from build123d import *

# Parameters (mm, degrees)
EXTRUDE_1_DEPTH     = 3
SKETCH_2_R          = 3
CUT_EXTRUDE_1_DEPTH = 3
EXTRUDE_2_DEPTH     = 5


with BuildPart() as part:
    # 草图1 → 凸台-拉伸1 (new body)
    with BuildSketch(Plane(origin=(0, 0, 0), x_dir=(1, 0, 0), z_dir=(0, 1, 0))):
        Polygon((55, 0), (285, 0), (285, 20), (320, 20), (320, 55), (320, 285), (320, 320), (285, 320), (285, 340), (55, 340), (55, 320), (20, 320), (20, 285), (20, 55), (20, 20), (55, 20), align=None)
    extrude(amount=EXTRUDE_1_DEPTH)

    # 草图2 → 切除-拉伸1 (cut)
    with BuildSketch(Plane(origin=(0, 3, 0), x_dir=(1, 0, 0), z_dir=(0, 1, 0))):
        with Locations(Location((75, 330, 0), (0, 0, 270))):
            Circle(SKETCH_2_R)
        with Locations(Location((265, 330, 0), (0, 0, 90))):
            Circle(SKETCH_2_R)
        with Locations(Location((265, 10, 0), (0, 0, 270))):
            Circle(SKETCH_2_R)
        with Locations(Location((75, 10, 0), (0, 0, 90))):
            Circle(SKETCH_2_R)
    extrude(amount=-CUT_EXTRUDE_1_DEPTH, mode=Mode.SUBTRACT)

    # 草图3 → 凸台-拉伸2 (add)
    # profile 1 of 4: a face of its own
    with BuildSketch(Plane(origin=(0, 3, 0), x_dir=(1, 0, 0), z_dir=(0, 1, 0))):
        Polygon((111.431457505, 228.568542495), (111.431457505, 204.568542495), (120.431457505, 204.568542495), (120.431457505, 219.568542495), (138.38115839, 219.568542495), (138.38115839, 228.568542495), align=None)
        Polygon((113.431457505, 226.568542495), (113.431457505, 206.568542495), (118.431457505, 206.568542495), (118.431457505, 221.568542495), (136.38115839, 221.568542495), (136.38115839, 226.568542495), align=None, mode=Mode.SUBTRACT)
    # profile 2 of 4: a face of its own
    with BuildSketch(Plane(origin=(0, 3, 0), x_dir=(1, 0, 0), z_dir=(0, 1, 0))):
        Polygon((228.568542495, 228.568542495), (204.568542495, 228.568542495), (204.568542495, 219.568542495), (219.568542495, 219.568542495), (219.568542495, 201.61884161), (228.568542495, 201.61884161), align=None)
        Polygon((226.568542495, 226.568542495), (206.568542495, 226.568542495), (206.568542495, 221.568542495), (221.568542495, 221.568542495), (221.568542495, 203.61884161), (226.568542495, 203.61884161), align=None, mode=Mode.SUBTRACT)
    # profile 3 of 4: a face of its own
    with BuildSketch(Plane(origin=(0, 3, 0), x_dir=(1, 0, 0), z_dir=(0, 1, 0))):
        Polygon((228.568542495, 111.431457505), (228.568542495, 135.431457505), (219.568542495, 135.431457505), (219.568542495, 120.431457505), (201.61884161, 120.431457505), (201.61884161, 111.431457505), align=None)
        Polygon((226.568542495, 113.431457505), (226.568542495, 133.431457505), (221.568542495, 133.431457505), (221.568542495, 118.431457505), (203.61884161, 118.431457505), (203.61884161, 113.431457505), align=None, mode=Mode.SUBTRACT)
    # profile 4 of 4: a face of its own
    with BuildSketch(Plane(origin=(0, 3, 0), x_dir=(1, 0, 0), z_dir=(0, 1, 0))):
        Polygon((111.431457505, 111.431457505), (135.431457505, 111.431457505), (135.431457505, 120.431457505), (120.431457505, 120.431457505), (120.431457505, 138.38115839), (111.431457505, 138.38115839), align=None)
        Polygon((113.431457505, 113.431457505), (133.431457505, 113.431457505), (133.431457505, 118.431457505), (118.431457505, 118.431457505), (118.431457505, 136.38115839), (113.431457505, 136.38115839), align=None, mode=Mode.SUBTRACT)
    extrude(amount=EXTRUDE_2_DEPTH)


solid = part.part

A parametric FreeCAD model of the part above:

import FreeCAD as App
import Part
import Sketcher
from FreeCAD import Vector
Q = App.Units.Quantity


def add_polygon(sketch, points):
    """Adds a closed chain of lines whose ends are joined by coincident constraints."""
    first, n = sketch.GeometryCount, len(points)
    for a, b in zip(points, points[1:] + points[:1]):
        sketch.addGeometry(Part.LineSegment(App.Vector(*a, 0), App.Vector(*b, 0)), False)
    for i in range(n):
        sketch.addConstraint(Sketcher.Constraint("Coincident", first + i, 2, first + (i + 1) % n, 1))

doc = App.newDocument("Part")
body = doc.addObject("PartDesign::Body", "Body")

# Sketch on XZ plane
sketch1 = body.newObject("Sketcher::SketchObject", "Sketch")
sketch1.AttachmentSupport = (doc.getObject("XZ_Plane"), [""])
sketch1.MapMode = "FlatFace"
add_polygon(sketch1, [(55, 0), (285, 0), (285, -20), (320, -20), (320, -320), (285, -320), (285, -340), (55, -340), (55, -320), (20, -320), (20, -20), (55, -20)])  # lines 0-11
sketch1.addConstraint(Sketcher.Constraint("Horizontal", 0))
sketch1.addConstraint(Sketcher.Constraint("Vertical", 1))
sketch1.addConstraint(Sketcher.Constraint("Horizontal", 2))
sketch1.addConstraint(Sketcher.Constraint("Vertical", 3))
sketch1.addConstraint(Sketcher.Constraint("Horizontal", 4))
sketch1.addConstraint(Sketcher.Constraint("Vertical", 5))
sketch1.addConstraint(Sketcher.Constraint("Horizontal", 6))
sketch1.addConstraint(Sketcher.Constraint("Vertical", 7))
sketch1.addConstraint(Sketcher.Constraint("Horizontal", 8))
sketch1.addConstraint(Sketcher.Constraint("Vertical", 9))
sketch1.addConstraint(Sketcher.Constraint("Horizontal", 10))
sketch1.addConstraint(Sketcher.Constraint("Vertical", 11))
sketch1.addConstraint(Sketcher.Constraint("PointOnObject", 0, 2, -1))
sketch1.addConstraint(Sketcher.Constraint("Horizontal", 4, 2, 7, 2))
sketch1.addConstraint(Sketcher.Constraint("Horizontal", 2, 2, 9, 2))
sketch1.addConstraint(Sketcher.Constraint("Vertical", 1, 2, 4, 2))
sketch1.addConstraint(Sketcher.Constraint("Vertical", 7, 2, 10, 2))
sketch1.addConstraint(Sketcher.Constraint("Equal", 4, 8))
sketch1.addConstraint(Sketcher.Constraint("Equal", 1, 5))
sketch1.addConstraint(Sketcher.Constraint("DistanceX", 0, 1, 0, 2, Q("230 mm")))
sketch1.addConstraint(Sketcher.Constraint("DistanceX", 2, 1, 2, 2, Q("35 mm")))
sketch1.addConstraint(Sketcher.Constraint("DistanceY", 1, 2, 1, 1, Q("20 mm")))
sketch1.addConstraint(Sketcher.Constraint("DistanceY", 3, 2, 3, 1, Q("300 mm")))
sketch1.addConstraint(Sketcher.Constraint("DistanceX", -1, 1, 0, 2, Q("285 mm")))
pad1 = body.newObject("PartDesign::Pad", "Pad")
pad1.Profile = sketch1
pad1.Length = 3
pad1.Reversed = True

# Sketch on XZ plane
sketch2 = body.newObject("Sketcher::SketchObject", "Sketch001")
sketch2.AttachmentSupport = (doc.getObject("XZ_Plane"), [""])
sketch2.MapMode = "FlatFace"
sketch2.AttachmentOffset = App.Placement(Vector(0, 0, -3), App.Rotation())
sketch2.addGeometry(Part.Circle(Vector(75, -330, 0), Vector(0, 0, 1), 3), False)
sketch2.addGeometry(Part.Circle(Vector(265, -330, 0), Vector(0, 0, 1), 3), False)
sketch2.addGeometry(Part.Circle(Vector(265, -10, 0), Vector(0, 0, 1), 3), False)
sketch2.addGeometry(Part.Circle(Vector(75, -10, 0), Vector(0, 0, 1), 3), False)
sketch2.addConstraint(Sketcher.Constraint("Equal", 0, 1))
sketch2.addConstraint(Sketcher.Constraint("Equal", 1, 2))
sketch2.addConstraint(Sketcher.Constraint("Equal", 2, 3))
sketch2.addConstraint(Sketcher.Constraint("Horizontal", 0, 3, 1, 3))
sketch2.addConstraint(Sketcher.Constraint("Horizontal", 2, 3, 3, 3))
sketch2.addConstraint(Sketcher.Constraint("Vertical", 1, 3, 2, 3))
sketch2.addConstraint(Sketcher.Constraint("Vertical", 0, 3, 3, 3))
sketch2.addConstraint(Sketcher.Constraint("Diameter", 0, Q("6 mm")))
sketch2.addConstraint(Sketcher.Constraint("DistanceX", -1, 1, 0, 3, Q("75 mm")))
sketch2.addConstraint(Sketcher.Constraint("DistanceY", 0, 3, -1, 1, Q("330 mm")))
sketch2.addConstraint(Sketcher.Constraint("DistanceX", -1, 1, 1, 3, Q("265 mm")))
sketch2.addConstraint(Sketcher.Constraint("DistanceY", 2, 3, -1, 1, Q("10 mm")))
pocket1 = body.newObject("PartDesign::Pocket", "Pocket")
pocket1.Profile = sketch2
pocket1.Length = 3
pocket1.Reversed = True

# Sketch on XZ plane
sketch3 = body.newObject("Sketcher::SketchObject", "Sketch002")
sketch3.AttachmentSupport = (doc.getObject("XZ_Plane"), [""])
sketch3.MapMode = "FlatFace"
sketch3.AttachmentOffset = App.Placement(Vector(0, 0, -3), App.Rotation())
add_polygon(sketch3, [(111, -229), (111, -205), (120, -205), (120, -220), (138, -220), (138, -229)])  # lines 0-5
add_polygon(sketch3, [(113, -207), (113, -227), (136, -227), (136, -222), (118, -222), (118, -207)])  # lines 6-11
add_polygon(sketch3, [(229, -229), (205, -229), (205, -220), (220, -220), (220, -202), (229, -202)])  # lines 12-17
add_polygon(sketch3, [(207, -227), (227, -227), (227, -204), (222, -204), (222, -222), (207, -222)])  # lines 18-23
add_polygon(sketch3, [(229, -111), (229, -135), (220, -135), (220, -120), (202, -120), (202, -111)])  # lines 24-29
add_polygon(sketch3, [(227, -133), (227, -113), (204, -113), (204, -118), (222, -118), (222, -133)])  # lines 30-35
add_polygon(sketch3, [(111, -111), (135, -111), (135, -120), (120, -120), (120, -138), (111, -138)])  # lines 36-41
add_polygon(sketch3, [(133, -113), (113, -113), (113, -136), (118, -136), (118, -118), (133, -118)])  # lines 42-47
sketch3.addConstraint(Sketcher.Constraint("Vertical", 0))
sketch3.addConstraint(Sketcher.Constraint("Horizontal", 1))
sketch3.addConstraint(Sketcher.Constraint("Vertical", 2))
sketch3.addConstraint(Sketcher.Constraint("Horizontal", 3))
sketch3.addConstraint(Sketcher.Constraint("Vertical", 4))
sketch3.addConstraint(Sketcher.Constraint("Horizontal", 5))
sketch3.addConstraint(Sketcher.Constraint("Vertical", 6))
sketch3.addConstraint(Sketcher.Constraint("Horizontal", 7))
sketch3.addConstraint(Sketcher.Constraint("Vertical", 8))
sketch3.addConstraint(Sketcher.Constraint("Horizontal", 9))
sketch3.addConstraint(Sketcher.Constraint("Vertical", 10))
sketch3.addConstraint(Sketcher.Constraint("Horizontal", 11))
sketch3.addConstraint(Sketcher.Constraint("Horizontal", 12))
sketch3.addConstraint(Sketcher.Constraint("Vertical", 13))
sketch3.addConstraint(Sketcher.Constraint("Horizontal", 14))
sketch3.addConstraint(Sketcher.Constraint("Vertical", 15))
sketch3.addConstraint(Sketcher.Constraint("Horizontal", 16))
sketch3.addConstraint(Sketcher.Constraint("Vertical", 17))
sketch3.addConstraint(Sketcher.Constraint("Horizontal", 18))
sketch3.addConstraint(Sketcher.Constraint("Vertical", 19))
sketch3.addConstraint(Sketcher.Constraint("Horizontal", 20))
sketch3.addConstraint(Sketcher.Constraint("Vertical", 21))
sketch3.addConstraint(Sketcher.Constraint("Horizontal", 22))
sketch3.addConstraint(Sketcher.Constraint("Vertical", 23))
sketch3.addConstraint(Sketcher.Constraint("Vertical", 24))
sketch3.addConstraint(Sketcher.Constraint("Horizontal", 25))
sketch3.addConstraint(Sketcher.Constraint("Vertical", 26))
sketch3.addConstraint(Sketcher.Constraint("Horizontal", 27))
sketch3.addConstraint(Sketcher.Constraint("Vertical", 28))
sketch3.addConstraint(Sketcher.Constraint("Horizontal", 29))
sketch3.addConstraint(Sketcher.Constraint("Vertical", 30))
sketch3.addConstraint(Sketcher.Constraint("Horizontal", 31))
sketch3.addConstraint(Sketcher.Constraint("Vertical", 32))
sketch3.addConstraint(Sketcher.Constraint("Horizontal", 33))
sketch3.addConstraint(Sketcher.Constraint("Vertical", 34))
sketch3.addConstraint(Sketcher.Constraint("Horizontal", 35))
sketch3.addConstraint(Sketcher.Constraint("Horizontal", 36))
sketch3.addConstraint(Sketcher.Constraint("Vertical", 37))
sketch3.addConstraint(Sketcher.Constraint("Horizontal", 38))
sketch3.addConstraint(Sketcher.Constraint("Vertical", 39))
sketch3.addConstraint(Sketcher.Constraint("Horizontal", 40))
sketch3.addConstraint(Sketcher.Constraint("Vertical", 41))
sketch3.addConstraint(Sketcher.Constraint("Horizontal", 42))
sketch3.addConstraint(Sketcher.Constraint("Vertical", 43))
sketch3.addConstraint(Sketcher.Constraint("Horizontal", 44))
sketch3.addConstraint(Sketcher.Constraint("Vertical", 45))
sketch3.addConstraint(Sketcher.Constraint("Horizontal", 46))
sketch3.addConstraint(Sketcher.Constraint("Vertical", 47))
sketch3.addConstraint(Sketcher.Constraint("Horizontal", 5, 2, 12, 2))
sketch3.addConstraint(Sketcher.Constraint("Horizontal", 3, 2, 13, 2))
sketch3.addConstraint(Sketcher.Constraint("Horizontal", 7, 2, 18, 2))
sketch3.addConstraint(Sketcher.Constraint("Horizontal", 9, 2, 21, 2))
sketch3.addConstraint(Sketcher.Constraint("Horizontal", 29, 2, 36, 2))
sketch3.addConstraint(Sketcher.Constraint("Horizontal", 27, 2, 37, 2))
sketch3.addConstraint(Sketcher.Constraint("Horizontal", 31, 2, 42, 2))
sketch3.addConstraint(Sketcher.Constraint("Horizontal", 33, 2, 45, 2))
sketch3.addConstraint(Sketcher.Constraint("Vertical", 17, 2, 24, 2))
sketch3.addConstraint(Sketcher.Constraint("Vertical", 15, 2, 25, 2))
sketch3.addConstraint(Sketcher.Constraint("Vertical", 19, 2, 30, 2))
sketch3.addConstraint(Sketcher.Constraint("Vertical", 21, 2, 33, 2))
sketch3.addConstraint(Sketcher.Constraint("Vertical", 2, 2, 38, 2))
sketch3.addConstraint(Sketcher.Constraint("Vertical", 5, 2, 40, 2))
sketch3.addConstraint(Sketcher.Constraint("Vertical", 11, 2, 42, 2))
sketch3.addConstraint(Sketcher.Constraint("Vertical", 10, 2, 44, 2))
sketch3.addConstraint(Sketcher.Constraint("Equal", 3, 9))
sketch3.addConstraint(Sketcher.Constraint("Equal", 1, 16))
sketch3.addConstraint(Sketcher.Constraint("Equal", 11, 20))
sketch3.addConstraint(Sketcher.Constraint("Equal", 14, 22))
sketch3.addConstraint(Sketcher.Constraint("Equal", 9, 27))
sketch3.addConstraint(Sketcher.Constraint("Equal", 7, 31))
sketch3.addConstraint(Sketcher.Constraint("Equal", 12, 36))
sketch3.addConstraint(Sketcher.Constraint("Equal", 18, 42))
sketch3.addConstraint(Sketcher.Constraint("Equal", 36, 0))
sketch3.addConstraint(Sketcher.Constraint("Equal", 46, 2))
sketch3.addConstraint(Sketcher.Constraint("Equal", 42, 6))
sketch3.addConstraint(Sketcher.Constraint("Equal", 44, 8))
sketch3.addConstraint(Sketcher.Constraint("Equal", 33, 15))
sketch3.addConstraint(Sketcher.Constraint("Equal", 31, 19))
sketch3.addConstraint(Sketcher.Constraint("Equal", 0, 24))
sketch3.addConstraint(Sketcher.Constraint("Equal", 10, 26))
sketch3.addConstraint(Sketcher.Constraint("Equal", 6, 30))
sketch3.addConstraint(Sketcher.Constraint("Equal", 23, 32))
sketch3.addConstraint(Sketcher.Constraint("Equal", 21, 39))
sketch3.addConstraint(Sketcher.Constraint("Equal", 19, 43))
sketch3.addConstraint(Sketcher.Constraint("DistanceX", 1, 1, 1, 2, Q("9 mm")))
sketch3.addConstraint(Sketcher.Constraint("DistanceX", 11, 2, 11, 1, Q("5 mm")))
sketch3.addConstraint(Sketcher.Constraint("DistanceX", 12, 2, 12, 1, Q("24 mm")))
sketch3.addConstraint(Sketcher.Constraint("DistanceX", 5, 2, 6, 2, Q("2 mm")))
sketch3.addConstraint(Sketcher.Constraint("DistanceY", 5, 2, 6, 2, Q("2 mm")))
sketch3.addConstraint(Sketcher.Constraint("DistanceX", 18, 2, 17, 2, Q("2 mm")))
sketch3.addConstraint(Sketcher.Constraint("DistanceY", 30, 2, 29, 2, Q("2 mm")))
sketch3.addConstraint(Sketcher.Constraint("DistanceX", 3, 1, 3, 2, Q("17.949701 mm")))
sketch3.addConstraint(Sketcher.Constraint("DistanceX", -1, 1, 3, 2, Q("138.381158 mm")))
sketch3.addConstraint(Sketcher.Constraint("DistanceY", 15, 2, -1, 1, Q("201.618842 mm")))
sketch3.addConstraint(Sketcher.Constraint("DistanceX", -1, 1, 27, 2, Q("201.618842 mm")))
sketch3.addConstraint(Sketcher.Constraint("DistanceY", 39, 2, -1, 1, Q("138.381158 mm")))
pad2 = body.newObject("PartDesign::Pad", "Pad001")
pad2.Profile = sketch3
pad2.Length = 5
pad2.Reversed = True

doc.recompute()
